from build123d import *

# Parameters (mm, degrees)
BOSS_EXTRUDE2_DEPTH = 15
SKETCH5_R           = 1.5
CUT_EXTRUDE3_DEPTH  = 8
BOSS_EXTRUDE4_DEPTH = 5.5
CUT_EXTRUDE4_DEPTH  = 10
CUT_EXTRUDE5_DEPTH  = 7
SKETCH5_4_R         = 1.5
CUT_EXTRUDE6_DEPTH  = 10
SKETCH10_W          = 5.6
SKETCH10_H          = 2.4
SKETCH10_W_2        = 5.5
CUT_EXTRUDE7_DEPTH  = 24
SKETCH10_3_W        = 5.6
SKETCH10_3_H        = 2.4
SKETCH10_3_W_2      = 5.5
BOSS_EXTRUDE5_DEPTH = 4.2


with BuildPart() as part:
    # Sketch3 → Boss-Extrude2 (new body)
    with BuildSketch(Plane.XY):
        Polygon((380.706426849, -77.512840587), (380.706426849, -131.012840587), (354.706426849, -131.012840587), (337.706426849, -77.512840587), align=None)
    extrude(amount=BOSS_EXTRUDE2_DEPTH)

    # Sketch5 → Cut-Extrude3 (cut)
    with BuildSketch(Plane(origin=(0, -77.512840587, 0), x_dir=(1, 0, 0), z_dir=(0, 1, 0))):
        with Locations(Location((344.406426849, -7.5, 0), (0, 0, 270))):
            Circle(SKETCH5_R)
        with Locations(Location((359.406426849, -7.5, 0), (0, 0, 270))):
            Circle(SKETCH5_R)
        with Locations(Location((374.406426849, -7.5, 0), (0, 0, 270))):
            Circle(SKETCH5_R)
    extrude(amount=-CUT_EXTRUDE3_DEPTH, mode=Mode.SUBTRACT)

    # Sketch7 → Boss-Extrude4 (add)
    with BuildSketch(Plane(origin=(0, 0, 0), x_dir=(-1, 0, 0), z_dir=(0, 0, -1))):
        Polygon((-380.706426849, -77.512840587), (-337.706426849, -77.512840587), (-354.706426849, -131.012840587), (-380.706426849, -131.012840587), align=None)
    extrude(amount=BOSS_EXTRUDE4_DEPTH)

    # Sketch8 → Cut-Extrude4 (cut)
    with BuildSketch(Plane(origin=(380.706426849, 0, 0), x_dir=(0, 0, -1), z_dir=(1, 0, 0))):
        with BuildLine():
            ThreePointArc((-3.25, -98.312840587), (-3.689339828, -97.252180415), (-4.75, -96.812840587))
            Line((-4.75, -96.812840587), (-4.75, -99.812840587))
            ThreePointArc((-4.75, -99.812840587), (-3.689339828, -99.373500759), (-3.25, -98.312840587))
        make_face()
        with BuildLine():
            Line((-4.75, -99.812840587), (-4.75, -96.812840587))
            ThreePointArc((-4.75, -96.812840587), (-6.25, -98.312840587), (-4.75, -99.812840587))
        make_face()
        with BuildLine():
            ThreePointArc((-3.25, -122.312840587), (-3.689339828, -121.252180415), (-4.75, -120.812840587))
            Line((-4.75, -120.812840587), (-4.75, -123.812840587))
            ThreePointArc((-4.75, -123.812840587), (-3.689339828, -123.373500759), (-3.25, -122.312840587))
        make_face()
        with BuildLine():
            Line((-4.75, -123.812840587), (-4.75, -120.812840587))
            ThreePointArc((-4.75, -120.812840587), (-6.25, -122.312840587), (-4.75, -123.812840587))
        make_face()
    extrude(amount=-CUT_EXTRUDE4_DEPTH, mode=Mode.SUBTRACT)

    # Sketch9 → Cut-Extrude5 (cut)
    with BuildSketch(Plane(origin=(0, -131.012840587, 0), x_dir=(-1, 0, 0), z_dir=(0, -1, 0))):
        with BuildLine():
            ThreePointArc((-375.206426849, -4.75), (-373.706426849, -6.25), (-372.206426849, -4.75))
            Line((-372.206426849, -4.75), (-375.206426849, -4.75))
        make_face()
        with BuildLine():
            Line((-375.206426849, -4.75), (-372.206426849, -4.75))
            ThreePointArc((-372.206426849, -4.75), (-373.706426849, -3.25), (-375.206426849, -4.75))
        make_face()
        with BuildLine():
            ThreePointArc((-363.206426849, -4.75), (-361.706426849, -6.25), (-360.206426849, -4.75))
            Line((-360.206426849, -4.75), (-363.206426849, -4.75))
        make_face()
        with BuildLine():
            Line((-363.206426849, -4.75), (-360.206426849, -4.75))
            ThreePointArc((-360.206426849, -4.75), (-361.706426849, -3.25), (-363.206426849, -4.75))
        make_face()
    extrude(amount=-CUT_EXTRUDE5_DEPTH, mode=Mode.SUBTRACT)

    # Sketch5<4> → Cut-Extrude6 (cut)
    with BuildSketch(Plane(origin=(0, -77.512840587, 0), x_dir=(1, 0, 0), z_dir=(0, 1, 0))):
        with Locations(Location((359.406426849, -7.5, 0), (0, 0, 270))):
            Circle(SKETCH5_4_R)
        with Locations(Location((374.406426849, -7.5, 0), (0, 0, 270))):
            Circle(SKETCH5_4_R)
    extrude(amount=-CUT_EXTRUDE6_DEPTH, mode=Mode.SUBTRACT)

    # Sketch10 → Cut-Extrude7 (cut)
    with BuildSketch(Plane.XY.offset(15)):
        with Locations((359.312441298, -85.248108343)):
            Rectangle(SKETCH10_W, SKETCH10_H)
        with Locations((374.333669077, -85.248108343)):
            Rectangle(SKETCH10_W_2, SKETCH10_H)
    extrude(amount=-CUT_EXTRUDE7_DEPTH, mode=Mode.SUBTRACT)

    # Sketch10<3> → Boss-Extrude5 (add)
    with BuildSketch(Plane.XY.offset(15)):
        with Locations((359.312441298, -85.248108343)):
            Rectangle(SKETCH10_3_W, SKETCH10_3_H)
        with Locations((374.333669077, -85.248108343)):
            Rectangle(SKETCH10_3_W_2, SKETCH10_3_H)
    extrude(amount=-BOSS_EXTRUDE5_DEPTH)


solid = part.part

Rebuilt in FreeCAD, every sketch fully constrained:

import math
import FreeCAD as App
import Part
import Sketcher

V = App.Vector


def add_polygon(sketch, points):
    """Adds a closed chain of lines whose ends are joined by coincident constraints."""
    first, n = sketch.GeometryCount, len(points)
    for a, b in zip(points, points[1:] + points[:1]):
        sketch.addGeometry(Part.LineSegment(App.Vector(*a, 0), App.Vector(*b, 0)), False)
    for i in range(n):
        sketch.addConstraint(Sketcher.Constraint("Coincident", first + i, 2, first + (i + 1) % n, 1))

doc = App.newDocument("Part")
body = doc.addObject("PartDesign::Body", "Body")

sketch1 = body.newObject("Sketcher::SketchObject", "Sketch")
sketch1.AttachmentSupport = (doc.getObject("XY_Plane"), [""])
sketch1.MapMode = "FlatFace"
add_polygon(sketch1, [(381, -131), (381, -78), (338, -78), (355, -131)])
sketch1.addConstraint([
    Sketcher.Constraint("Vertical", 0),
    Sketcher.Constraint("Horizontal", 1),
    Sketcher.Constraint("Horizontal", 3),
    Sketcher.Constraint("DistanceX", 1, 2, 1, 1, 43.0),
    Sketcher.Constraint("DistanceX", 3, 1, 3, 2, 26.0),
    Sketcher.Constraint("DistanceY", 0, 1, 0, 2, 53.5),
    Sketcher.Constraint("DistanceY", 0, 2, -1, 1, 77.512841),
    Sketcher.Constraint("DistanceX", -1, 1, 0, 2, 380.706427),
])
pad1 = body.newObject("PartDesign::Pad", "Pad")
pad1.Profile = sketch1
pad1.Length = 15

sketch2 = body.newObject("Sketcher::SketchObject", "Sketch001")
sketch2.AttachmentSupport = (doc.getObject("XZ_Plane"), [""])
sketch2.MapMode = "FlatFace"
sketch2.AttachmentOffset = App.Placement(V(0, 0, 77.512841), App.Rotation())
sketch2.addGeometry([
    Part.Circle(V(344.4, 7.5, 0), V(0, 0, 1), 1.5),
    Part.Circle(V(359.4, 7.5, 0), V(0, 0, 1), 1.5),
    Part.Circle(V(374.4, 7.5, 0), V(0, 0, 1), 1.5),
], False)
sketch2.addConstraint([
    Sketcher.Constraint("Equal", 0, 1),
    Sketcher.Constraint("Equal", 1, 2),
    Sketcher.Constraint("Horizontal", 0, 3, 1, 3),
    Sketcher.Constraint("Horizontal", 1, 3, 2, 3),
    Sketcher.Constraint("Diameter", 0, 3.0),
    Sketcher.Constraint("DistanceX", 0, 3, 1, 3, 15.0),
    Sketcher.Constraint("DistanceX", 1, 3, 2, 3, 15.0),
    Sketcher.Constraint("DistanceY", -1, 1, 0, 3, 7.5),
    Sketcher.Constraint("DistanceX", -1, 1, 0, 3, 344.406427),
])
pocket1 = body.newObject("PartDesign::Pocket", "Pocket")
pocket1.Profile = sketch2
pocket1.Length = 8
pocket1.Reversed = True

sketch3 = body.newObject("Sketcher::SketchObject", "Sketch002")
sketch3.AttachmentSupport = (doc.getObject("XY_Plane"), [""])
sketch3.MapMode = "FlatFace"
add_polygon(sketch3, [(338, -78), (381, -78), (381, -131), (355, -131)])
sketch3.addConstraint([
    Sketcher.Constraint("Horizontal", 0),
    Sketcher.Constraint("Vertical", 1),
    Sketcher.Constraint("Horizontal", 2),
    Sketcher.Constraint("DistanceX", 0, 1, 0, 2, 43.0),
    Sketcher.Constraint("DistanceX", 2, 2, 2, 1, 26.0),
    Sketcher.Constraint("DistanceY", 1, 2, 1, 1, 53.5),
    Sketcher.Constraint("DistanceY", 0, 2, -1, 1, 77.512841),
    Sketcher.Constraint("DistanceX", -1, 1, 0, 2, 380.706427),
])
pad2 = body.newObject("PartDesign::Pad", "Pad001")
pad2.Profile = sketch3
pad2.Length = 5.5
pad2.Reversed = True

sketch4 = body.newObject("Sketcher::SketchObject", "Sketch003")
sketch4.AttachmentSupport = (doc.getObject("YZ_Plane"), [""])
sketch4.MapMode = "FlatFace"
sketch4.AttachmentOffset = App.Placement(V(0, 0, 380.706427), App.Rotation())
sketch4.addGeometry([
    Part.ArcOfCircle(Part.Circle(V(-98.3, 4.7, 0), V(0, 0, 1), 1.5), math.radians(-90), math.radians(0)),
    Part.ArcOfCircle(Part.Circle(V(-98.3, 4.8, 0), V(0, 0, 1), 1.5), math.radians(0), math.radians(180)),
    Part.ArcOfCircle(Part.Circle(V(-98.3, 4.7, 0), V(0, 0, 1), 1.5), math.radians(180), math.radians(270)),
    Part.ArcOfCircle(Part.Circle(V(-122.3, 4.7, 0), V(0, 0, 1), 1.5), math.radians(-90), math.radians(0)),
    Part.ArcOfCircle(Part.Circle(V(-122.3, 4.8, 0), V(0, 0, 1), 1.5), math.radians(0), math.radians(180)),
    Part.ArcOfCircle(Part.Circle(V(-122.3, 4.7, 0), V(0, 0, 1), 1.5), math.radians(180), math.radians(270)),
], False)
sketch4.addConstraint([
    Sketcher.Constraint("Tangent", 0, 2, 1, 1),
    Sketcher.Constraint("Tangent", 1, 2, 2, 1),
    Sketcher.Constraint("Tangent", 2, 2, 0, 1),
    Sketcher.Constraint("Tangent", 3, 2, 4, 1),
    Sketcher.Constraint("Tangent", 4, 2, 5, 1),
    Sketcher.Constraint("Tangent", 5, 2, 3, 1),
    Sketcher.Constraint("Equal", 2, 3),
    Sketcher.Constraint("Horizontal", 2, 3, 3, 3),
    Sketcher.Constraint("Horizontal", 5, 3, 0, 2),
    Sketcher.Constraint("Horizontal", 0, 2, 1, 2),
    Sketcher.Constraint("Horizontal", 1, 2, 3, 2),
    Sketcher.Constraint("Horizontal", 3, 2, 4, 2),
    Sketcher.Constraint("Vertical", 1, 3, 2, 2),
    Sketcher.Constraint("Vertical", 4, 3, 5, 2),
    Sketcher.Constraint("Radius", 0, 1.5),
    Sketcher.Constraint("DistanceX", 3, 3, 2, 3, 24.0),
    Sketcher.Constraint("DistanceY", -1, 1, 0, 3, 4.75),
    Sketcher.Constraint("DistanceX", 0, 3, -1, 1, 98.312841),
])
pocket2 = body.newObject("PartDesign::Pocket", "Pocket001")
pocket2.Profile = sketch4
pocket2.Length = 10

sketch5 = body.newObject("Sketcher::SketchObject", "Sketch004")
sketch5.AttachmentSupport = (doc.getObject("XZ_Plane"), [""])
sketch5.MapMode = "FlatFace"
sketch5.AttachmentOffset = App.Placement(V(0, 0, 131.012841), App.Rotation())
sketch5.addGeometry([
    Part.Circle(V(373.7, 4.8, 0), V(0, 0, 1), 1.5),
    Part.Circle(V(361.7, 4.8, 0), V(0, 0, 1), 1.5),
], False)
sketch5.addConstraint([
    Sketcher.Constraint("Equal", 0, 1),
    Sketcher.Constraint("Horizontal", 0, 3, 1, 3),
    Sketcher.Constraint("Diameter", 0, 3.0),
    Sketcher.Constraint("DistanceX", 1, 3, 0, 3, 12.0),
    Sketcher.Constraint("DistanceY", -1, 1, 0, 3, 4.75),
    Sketcher.Constraint("DistanceX", -1, 1, 0, 3, 373.706427),
])
pocket3 = body.newObject("PartDesign::Pocket", "Pocket002")
pocket3.Profile = sketch5
pocket3.Length = 7

sketch6 = body.newObject("Sketcher::SketchObject", "Sketch005")
sketch6.AttachmentSupport = (doc.getObject("XZ_Plane"), [""])
sketch6.MapMode = "FlatFace"
sketch6.AttachmentOffset = App.Placement(V(0, 0, 77.512841), App.Rotation())
sketch6.addGeometry([
    Part.Circle(V(359.4, 7.5, 0), V(0, 0, 1), 1.5),
    Part.Circle(V(374.4, 7.5, 0), V(0, 0, 1), 1.5),
], False)
sketch6.addConstraint([
    Sketcher.Constraint("Equal", 0, 1),
    Sketcher.Constraint("Horizontal", 0, 3, 1, 3),
    Sketcher.Constraint("Diameter", 0, 3.0),
    Sketcher.Constraint("DistanceX", 0, 3, 1, 3, 15.0),
    Sketcher.Constraint("DistanceY", -1, 1, 0, 3, 7.5),
    Sketcher.Constraint("DistanceX", -1, 1, 0, 3, 359.406427),
])
pocket4 = body.newObject("PartDesign::Pocket", "Pocket003")
pocket4.Profile = sketch6
pocket4.Length = 10
pocket4.Reversed = True

sketch7 = body.newObject("Sketcher::SketchObject", "Sketch006")
sketch7.AttachmentSupport = (doc.getObject("XY_Plane"), [""])
sketch7.MapMode = "FlatFace"
sketch7.AttachmentOffset = App.Placement(V(0, 0, 15), App.Rotation())
add_polygon(sketch7, [(356.5, -84), (356.5, -86.4), (362.1, -86.4), (362.1, -84)])
add_polygon(sketch7, [(371.6, -84), (371.6, -86.4), (377.1, -86.4), (377.1, -84)])
sketch7.addConstraint([
    Sketcher.Constraint("Vertical", 0),
    Sketcher.Constraint("Horizontal", 1),
    Sketcher.Constraint("Vertical", 2),
    Sketcher.Constraint("Horizontal", 3),
    Sketcher.Constraint("Vertical", 4),
    Sketcher.Constraint("Horizontal", 5),
    Sketcher.Constraint("Vertical", 6),
    Sketcher.Constraint("Horizontal", 7),
    Sketcher.Constraint("Horizontal", 1, 2, 4, 2),
    Sketcher.Constraint("Horizontal", 3, 2, 6, 2),
    Sketcher.Constraint("DistanceX", 1, 1, 1, 2, 5.6),
    Sketcher.Constraint("DistanceX", 5, 1, 5, 2, 5.5),
    Sketcher.Constraint("DistanceY", 0, 2, 0, 1, 2.4),
    Sketcher.Constraint("DistanceX", -1, 1, 0, 2, 356.512441),
    Sketcher.Constraint("DistanceY", 0, 2, -1, 1, 86.448108),
    Sketcher.Constraint("DistanceX", -1, 1, 4, 2, 371.583669),
])
pocket5 = body.newObject("PartDesign::Pocket", "Pocket004")
pocket5.Profile = sketch7
pocket5.Length = 24

sketch8 = body.newObject("Sketcher::SketchObject", "Sketch007")
sketch8.AttachmentSupport = (doc.getObject("XY_Plane"), [""])
sketch8.MapMode = "FlatFace"
sketch8.AttachmentOffset = App.Placement(V(0, 0, 15), App.Rotation())
add_polygon(sketch8, [(356.5, -84), (356.5, -86.4), (362.1, -86.4), (362.1, -84)])
add_polygon(sketch8, [(371.6, -84), (371.6, -86.4), (377.1, -86.4), (377.1, -84)])
sketch8.addConstraint([
    Sketcher.Constraint("Vertical", 0),
    Sketcher.Constraint("Horizontal", 1),
    Sketcher.Constraint("Vertical", 2),
    Sketcher.Constraint("Horizontal", 3),
    Sketcher.Constraint("Vertical", 4),
    Sketcher.Constraint("Horizontal", 5),
    Sketcher.Constraint("Vertical", 6),
    Sketcher.Constraint("Horizontal", 7),
    Sketcher.Constraint("Horizontal", 1, 2, 4, 2),
    Sketcher.Constraint("Horizontal", 3, 2, 6, 2),
    Sketcher.Constraint("DistanceX", 1, 1, 1, 2, 5.6),
    Sketcher.Constraint("DistanceX", 5, 1, 5, 2, 5.5),
    Sketcher.Constraint("DistanceY", 0, 2, 0, 1, 2.4),
    Sketcher.Constraint("DistanceX", -1, 1, 0, 2, 356.512441),
    Sketcher.Constraint("DistanceY", 0, 2, -1, 1, 86.448108),
    Sketcher.Constraint("DistanceX", -1, 1, 4, 2, 371.583669),
])
pad3 = body.newObject("PartDesign::Pad", "Pad002")
pad3.Profile = sketch8
pad3.Length = 4.2
pad3.Reversed = True

doc.recompute()
